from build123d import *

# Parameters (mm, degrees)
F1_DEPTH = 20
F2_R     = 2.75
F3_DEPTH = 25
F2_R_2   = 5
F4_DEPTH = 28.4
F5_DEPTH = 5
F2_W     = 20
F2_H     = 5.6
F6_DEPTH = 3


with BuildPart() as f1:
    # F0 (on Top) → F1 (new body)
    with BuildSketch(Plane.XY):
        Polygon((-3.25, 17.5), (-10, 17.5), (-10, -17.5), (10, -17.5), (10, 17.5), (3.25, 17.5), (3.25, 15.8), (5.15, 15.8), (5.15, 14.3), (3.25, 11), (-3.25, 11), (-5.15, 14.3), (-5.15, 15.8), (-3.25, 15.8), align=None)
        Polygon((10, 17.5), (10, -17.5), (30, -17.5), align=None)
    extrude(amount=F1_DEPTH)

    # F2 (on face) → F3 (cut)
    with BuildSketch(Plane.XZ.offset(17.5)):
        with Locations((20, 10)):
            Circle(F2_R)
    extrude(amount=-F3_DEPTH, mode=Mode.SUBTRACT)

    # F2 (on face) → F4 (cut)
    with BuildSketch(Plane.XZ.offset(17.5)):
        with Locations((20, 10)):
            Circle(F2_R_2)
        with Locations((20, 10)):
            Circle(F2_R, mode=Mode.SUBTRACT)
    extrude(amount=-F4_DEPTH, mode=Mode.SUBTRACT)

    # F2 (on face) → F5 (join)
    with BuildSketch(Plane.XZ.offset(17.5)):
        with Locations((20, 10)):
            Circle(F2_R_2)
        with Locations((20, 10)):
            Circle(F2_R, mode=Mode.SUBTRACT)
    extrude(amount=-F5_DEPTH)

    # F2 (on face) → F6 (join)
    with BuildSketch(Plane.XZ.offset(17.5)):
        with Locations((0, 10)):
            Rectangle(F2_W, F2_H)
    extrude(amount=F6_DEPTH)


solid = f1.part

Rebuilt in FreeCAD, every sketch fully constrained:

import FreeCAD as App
import Part
import Sketcher


def add_polygon(sketch, points):
    """Adds a closed chain of lines whose ends are joined by coincident constraints."""
    first, n = sketch.GeometryCount, len(points)
    for a, b in zip(points, points[1:] + points[:1]):
        sketch.addGeometry(Part.LineSegment(App.Vector(*a, 0), App.Vector(*b, 0)), False)
    for i in range(n):
        sketch.addConstraint(Sketcher.Constraint("Coincident", first + i, 2, first + (i + 1) % n, 1))

doc = App.newDocument("Part")
params = doc.addObject("Spreadsheet::Sheet", "Params")
for row, (alias, value) in enumerate([
    ("sketch1_width", "40 mm"),
    ("sketch1_height", "35 mm"),
    ("sketch1_width2", "1.9 mm"),
    ("sketch1_width3", "6.5 mm"),
    ("sketch1_height2", "1.7 mm"),
    ("pad1_length", "20 mm"),
    ("sketch2_diameter", "5.5 mm"),
    ("pocket1_length", "25 mm"),
    ("sketch3_diameter", "10 mm"),
    ("sketch3_diameter2", "5.5 mm"),
    ("pocket2_length", "28.4 mm"),
    ("sketch4_diameter", "10 mm"),
    ("sketch4_diameter2", "5.5 mm"),
    ("pad2_length", "5 mm"),
    ("sketch5_width", "20 mm"),
    ("sketch5_height", "5.6 mm"),
    ("pad3_length", "3 mm"),
], start=1):
    params.set(f"A{row}", alias)
    params.set(f"B{row}", "=" + value)
    params.setAlias(f"B{row}", alias)

body = doc.addObject("PartDesign::Body", "Body")

# Sketch on XY plane
sketch1 = body.newObject("Sketcher::SketchObject", "Sketch")
sketch1.AttachmentSupport = (doc.getObject("XY_Plane"), [""])
sketch1.MapMode = "FlatFace"
add_polygon(sketch1, [(-3.2, 17.5), (-10, 17.5), (-10, -17.5), (30, -17.5), (10, 17.5), (3.2, 17.5), (3.2, 15.8), (5.2, 15.8), (5.2, 14.3), (3.2, 11), (-3.2, 11), (-5.2, 14.3), (-5.2, 15.8), (-3.2, 15.8)])  # lines 0-13
sketch1.addConstraint(Sketcher.Constraint("Horizontal", 0))
sketch1.addConstraint(Sketcher.Constraint("Vertical", 1))
sketch1.addConstraint(Sketcher.Constraint("Horizontal", 2))
sketch1.addConstraint(Sketcher.Constraint("Horizontal", 4))
sketch1.addConstraint(Sketcher.Constraint("Vertical", 5))
sketch1.addConstraint(Sketcher.Constraint("Horizontal", 6))
sketch1.addConstraint(Sketcher.Constraint("Vertical", 7))
sketch1.addConstraint(Sketcher.Constraint("Horizontal", 9))
sketch1.addConstraint(Sketcher.Constraint("Vertical", 11))
sketch1.addConstraint(Sketcher.Constraint("Horizontal", 12))
sketch1.addConstraint(Sketcher.Constraint("Vertical", 13))
sketch1.addConstraint(Sketcher.Constraint("Symmetric", 1, 2, 3, 2, -1, 1))
sketch1.addConstraint(Sketcher.Constraint("Symmetric", 7, 2, 10, 2, -2))
sketch1.addConstraint(Sketcher.Constraint("Symmetric", 5, 2, 12, 2, -2))
sketch1.addConstraint(Sketcher.Constraint("Horizontal", 0, 2, 3, 2))
sketch1.addConstraint(Sketcher.Constraint("Vertical", 5, 2, 8, 2))
sketch1.addConstraint(Sketcher.Constraint("Vertical", 9, 2, 12, 2))
sketch1.addConstraint(Sketcher.Constraint("DistanceX", 2, 1, 2, 2, 40.0))
sketch1.addConstraint(Sketcher.Constraint("DistanceY", 1, 2, 1, 1, 35.0))
sketch1.addConstraint(Sketcher.Constraint("DistanceX", 6, 1, 6, 2, 1.9))
sketch1.addConstraint(Sketcher.Constraint("DistanceX", 9, 2, 9, 1, 6.5))
sketch1.addConstraint(Sketcher.Constraint("DistanceY", 5, 2, 5, 1, 1.7))
sketch1.addConstraint(Sketcher.Constraint("DistanceY", 7, 2, 7, 1, 1.5))
sketch1.addConstraint(Sketcher.Constraint("DistanceX", 0, 2, -1, 1, 10.0))
sketch1.addConstraint(Sketcher.Constraint("DistanceY", -1, 1, 8, 2, 11.0))
sketch1.setExpression("Constraints[31]", "Params.sketch1_width")
sketch1.setExpression("Constraints[32]", "Params.sketch1_height")
sketch1.setExpression("Constraints[33]", "Params.sketch1_width2")
sketch1.setExpression("Constraints[34]", "Params.sketch1_width3")
sketch1.setExpression("Constraints[35]", "Params.sketch1_height2")
pad1 = body.newObject("PartDesign::Pad", "Pad")
pad1.Profile = sketch1
pad1.setExpression("Length", "Params.pad1_length")

# Sketch on XZ plane
sketch2 = body.newObject("Sketcher::SketchObject", "Sketch001")
sketch2.AttachmentSupport = (doc.getObject("XZ_Plane"), [""])
sketch2.MapMode = "FlatFace"
sketch2.AttachmentOffset = App.Placement(App.Vector(0, 0, 17.5), App.Rotation())
sketch2.addGeometry(Part.Circle(App.Vector(20, 10, 0), App.Vector(0, 0, 1), 2.8), False)
sketch2.addConstraint(Sketcher.Constraint("Diameter", 0, 5.5))
sketch2.addConstraint(Sketcher.Constraint("DistanceX", -1, 1, 0, 3, 20.0))
sketch2.addConstraint(Sketcher.Constraint("DistanceY", -1, 1, 0, 3, 10.0))
sketch2.setExpression("Constraints[0]", "Params.sketch2_diameter")
pocket1 = body.newObject("PartDesign::Pocket", "Pocket")
pocket1.Profile = sketch2
pocket1.setExpression("Length", "Params.pocket1_length")

# Sketch on XZ plane
sketch3 = body.newObject("Sketcher::SketchObject", "Sketch002")
sketch3.AttachmentSupport = (doc.getObject("XZ_Plane"), [""])
sketch3.MapMode = "FlatFace"
sketch3.AttachmentOffset = App.Placement(App.Vector(0, 0, 17.5), App.Rotation())
sketch3.addGeometry(Part.Circle(App.Vector(20, 10, 0), App.Vector(0, 0, 1), 5), False)
sketch3.addGeometry(Part.Circle(App.Vector(20, 10, 0), App.Vector(0, 0, 1), 2.8), False)
sketch3.addConstraint(Sketcher.Constraint("Coincident", 1, 3, 0, 3))
sketch3.addConstraint(Sketcher.Constraint("Diameter", 0, 10.0))
sketch3.addConstraint(Sketcher.Constraint("Diameter", 1, 5.5))
sketch3.addConstraint(Sketcher.Constraint("DistanceX", -1, 1, 0, 3, 20.0))
sketch3.addConstraint(Sketcher.Constraint("DistanceY", -1, 1, 0, 3, 10.0))
sketch3.setExpression("Constraints[1]", "Params.sketch3_diameter")
sketch3.setExpression("Constraints[2]", "Params.sketch3_diameter2")
pocket2 = body.newObject("PartDesign::Pocket", "Pocket001")
pocket2.Profile = sketch3
pocket2.setExpression("Length", "Params.pocket2_length")

# Sketch on XZ plane
sketch4 = body.newObject("Sketcher::SketchObject", "Sketch003")
sketch4.AttachmentSupport = (doc.getObject("XZ_Plane"), [""])
sketch4.MapMode = "FlatFace"
sketch4.AttachmentOffset = App.Placement(App.Vector(0, 0, 17.5), App.Rotation())
sketch4.addGeometry(Part.Circle(App.Vector(20, 10, 0), App.Vector(0, 0, 1), 5), False)
sketch4.addGeometry(Part.Circle(App.Vector(20, 10, 0), App.Vector(0, 0, 1), 2.8), False)
sketch4.addConstraint(Sketcher.Constraint("Coincident", 1, 3, 0, 3))
sketch4.addConstraint(Sketcher.Constraint("Diameter", 0, 10.0))
sketch4.addConstraint(Sketcher.Constraint("Diameter", 1, 5.5))
sketch4.addConstraint(Sketcher.Constraint("DistanceX", -1, 1, 0, 3, 20.0))
sketch4.addConstraint(Sketcher.Constraint("DistanceY", -1, 1, 0, 3, 10.0))
sketch4.setExpression("Constraints[1]", "Params.sketch4_diameter")
sketch4.setExpression("Constraints[2]", "Params.sketch4_diameter2")
pad2 = body.newObject("PartDesign::Pad", "Pad001")
pad2.Profile = sketch4
pad2.setExpression("Length", "Params.pad2_length")
pad2.Reversed = True

# Sketch on XZ plane
sketch5 = body.newObject("Sketcher::SketchObject", "Sketch004")
sketch5.AttachmentSupport = (doc.getObject("XZ_Plane"), [""])
sketch5.MapMode = "FlatFace"
sketch5.AttachmentOffset = App.Placement(App.Vector(0, 0, 17.5), App.Rotation())
add_polygon(sketch5, [(-10, 13), (-10, 7), (10, 7), (10, 13)])  # lines 0-3
sketch5.addConstraint(Sketcher.Constraint("Vertical", 0))
sketch5.addConstraint(Sketcher.Constraint("Horizontal", 1))
sketch5.addConstraint(Sketcher.Constraint("Vertical", 2))
sketch5.addConstraint(Sketcher.Constraint("Horizontal", 3))
sketch5.addConstraint(Sketcher.Constraint("DistanceX", 1, 1, 1, 2, 20.0))
sketch5.addConstraint(Sketcher.Constraint("DistanceY", 0, 2, 0, 1, 5.6))
sketch5.addConstraint(Sketcher.Constraint("DistanceX", 0, 2, -1, 1, 10.0))
sketch5.addConstraint(Sketcher.Constraint("DistanceY", -1, 1, 0, 2, 7.2))
sketch5.setExpression("Constraints[8]", "Params.sketch5_width")
sketch5.setExpression("Constraints[9]", "Params.sketch5_height")
pad3 = body.newObject("PartDesign::Pad", "Pad002")
pad3.Profile = sketch5
pad3.setExpression("Length", "Params.pad3_length")

doc.recompute()
